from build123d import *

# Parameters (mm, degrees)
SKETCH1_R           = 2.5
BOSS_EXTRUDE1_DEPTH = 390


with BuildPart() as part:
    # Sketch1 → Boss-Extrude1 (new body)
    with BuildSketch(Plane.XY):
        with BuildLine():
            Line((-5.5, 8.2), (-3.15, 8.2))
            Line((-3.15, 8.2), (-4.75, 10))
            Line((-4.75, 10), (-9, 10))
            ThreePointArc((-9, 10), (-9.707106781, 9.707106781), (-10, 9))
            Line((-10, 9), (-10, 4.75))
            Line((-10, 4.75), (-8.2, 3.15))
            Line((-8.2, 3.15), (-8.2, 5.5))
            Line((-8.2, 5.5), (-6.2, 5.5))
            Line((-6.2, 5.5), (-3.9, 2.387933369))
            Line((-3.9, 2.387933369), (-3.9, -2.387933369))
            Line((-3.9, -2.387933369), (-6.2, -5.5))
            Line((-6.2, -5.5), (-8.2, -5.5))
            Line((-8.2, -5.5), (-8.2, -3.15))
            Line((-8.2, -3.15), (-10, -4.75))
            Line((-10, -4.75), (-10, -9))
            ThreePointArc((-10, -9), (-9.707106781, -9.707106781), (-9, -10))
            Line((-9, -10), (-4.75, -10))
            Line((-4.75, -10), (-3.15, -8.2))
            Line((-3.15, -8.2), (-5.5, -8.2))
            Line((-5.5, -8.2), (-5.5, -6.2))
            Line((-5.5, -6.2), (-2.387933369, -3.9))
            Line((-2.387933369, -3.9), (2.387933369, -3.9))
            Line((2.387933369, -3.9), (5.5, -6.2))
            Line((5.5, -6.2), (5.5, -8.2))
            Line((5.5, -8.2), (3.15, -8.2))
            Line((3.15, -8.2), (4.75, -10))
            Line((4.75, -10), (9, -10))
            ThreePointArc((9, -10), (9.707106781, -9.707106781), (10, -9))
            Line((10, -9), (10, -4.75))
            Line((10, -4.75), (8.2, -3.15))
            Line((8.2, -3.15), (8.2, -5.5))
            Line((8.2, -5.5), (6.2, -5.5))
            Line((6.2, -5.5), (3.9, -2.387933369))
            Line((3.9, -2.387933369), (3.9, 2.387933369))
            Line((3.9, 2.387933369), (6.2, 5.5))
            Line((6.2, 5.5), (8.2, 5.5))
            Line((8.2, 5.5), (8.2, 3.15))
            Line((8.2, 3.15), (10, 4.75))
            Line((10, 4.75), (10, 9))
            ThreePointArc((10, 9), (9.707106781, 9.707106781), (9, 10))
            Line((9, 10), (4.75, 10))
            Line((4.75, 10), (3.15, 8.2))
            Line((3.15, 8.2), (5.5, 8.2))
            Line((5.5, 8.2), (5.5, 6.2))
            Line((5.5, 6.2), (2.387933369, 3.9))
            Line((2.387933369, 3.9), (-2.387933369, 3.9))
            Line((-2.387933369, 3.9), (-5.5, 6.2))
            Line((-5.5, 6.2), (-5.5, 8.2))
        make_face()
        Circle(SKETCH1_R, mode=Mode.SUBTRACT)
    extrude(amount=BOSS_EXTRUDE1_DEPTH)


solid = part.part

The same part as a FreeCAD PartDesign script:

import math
import FreeCAD as App
import Part
import Sketcher
from FreeCAD import Vector

doc = App.newDocument("Part")
body = doc.addObject("PartDesign::Body", "Body")

# Sketch on XY plane
sketch1 = body.newObject("Sketcher::SketchObject", "Sketch")
sketch1.AttachmentSupport = (doc.getObject("XY_Plane"), [""])
sketch1.MapMode = "FlatFace"
sketch1.addGeometry(Part.LineSegment(Vector(-5.5, 8.2, 0), Vector(-3.1, 8.2, 0)), False)
sketch1.addGeometry(Part.LineSegment(Vector(-3.1, 8.2, 0), Vector(-4.8, 10, 0)), False)
sketch1.addGeometry(Part.LineSegment(Vector(-4.8, 10, 0), Vector(-9, 10, 0)), False)
sketch1.addGeometry(Part.ArcOfCircle(Part.Circle(Vector(-9, 9, 0), Vector(0, 0, 1), 1), math.radians(90), math.radians(180)), False)
sketch1.addGeometry(Part.LineSegment(Vector(-10, 9, 0), Vector(-10, 4.8, 0)), False)
sketch1.addGeometry(Part.LineSegment(Vector(-10, 4.8, 0), Vector(-8.2, 3.1, 0)), False)
sketch1.addGeometry(Part.LineSegment(Vector(-8.2, 3.1, 0), Vector(-8.2, 5.5, 0)), False)
sketch1.addGeometry(Part.LineSegment(Vector(-8.2, 5.5, 0), Vector(-6.2, 5.5, 0)), False)
sketch1.addGeometry(Part.LineSegment(Vector(-6.2, 5.5, 0), Vector(-3.9, 2.4, 0)), False)
sketch1.addGeometry(Part.LineSegment(Vector(-3.9, 2.4, 0), Vector(-3.9, -2.4, 0)), False)
sketch1.addGeometry(Part.LineSegment(Vector(-3.9, -2.4, 0), Vector(-6.2, -5.5, 0)), False)
sketch1.addGeometry(Part.LineSegment(Vector(-6.2, -5.5, 0), Vector(-8.2, -5.5, 0)), False)
sketch1.addGeometry(Part.LineSegment(Vector(-8.2, -5.5, 0), Vector(-8.2, -3.1, 0)), False)
sketch1.addGeometry(Part.LineSegment(Vector(-8.2, -3.1, 0), Vector(-10, -4.8, 0)), False)
sketch1.addGeometry(Part.LineSegment(Vector(-10, -4.8, 0), Vector(-10, -9, 0)), False)
sketch1.addGeometry(Part.ArcOfCircle(Part.Circle(Vector(-9, -9, 0), Vector(0, 0, 1), 1), math.radians(-180), math.radians(-90)), False)
sketch1.addGeometry(Part.LineSegment(Vector(-9, -10, 0), Vector(-4.8, -10, 0)), False)
sketch1.addGeometry(Part.LineSegment(Vector(-4.8, -10, 0), Vector(-3.1, -8.2, 0)), False)
sketch1.addGeometry(Part.LineSegment(Vector(-3.1, -8.2, 0), Vector(-5.5, -8.2, 0)), False)
sketch1.addGeometry(Part.LineSegment(Vector(-5.5, -8.2, 0), Vector(-5.5, -6.2, 0)), False)
sketch1.addGeometry(Part.LineSegment(Vector(-5.5, -6.2, 0), Vector(-2.4, -3.9, 0)), False)
sketch1.addGeometry(Part.LineSegment(Vector(-2.4, -3.9, 0), Vector(2.4, -3.9, 0)), False)
sketch1.addGeometry(Part.LineSegment(Vector(2.4, -3.9, 0), Vector(5.5, -6.2, 0)), False)
sketch1.addGeometry(Part.LineSegment(Vector(5.5, -6.2, 0), Vector(5.5, -8.2, 0)), False)
sketch1.addGeometry(Part.LineSegment(Vector(5.5, -8.2, 0), Vector(3.1, -8.2, 0)), False)
sketch1.addGeometry(Part.LineSegment(Vector(3.1, -8.2, 0), Vector(4.8, -10, 0)), False)
sketch1.addGeometry(Part.LineSegment(Vector(4.8, -10, 0), Vector(9, -10, 0)), False)
sketch1.addGeometry(Part.ArcOfCircle(Part.Circle(Vector(9, -9, 0), Vector(0, 0, 1), 1), math.radians(-90), math.radians(0)), False)
sketch1.addGeometry(Part.LineSegment(Vector(10, -9, 0), Vector(10, -4.8, 0)), False)
sketch1.addGeometry(Part.LineSegment(Vector(10, -4.8, 0), Vector(8.2, -3.1, 0)), False)
sketch1.addGeometry(Part.LineSegment(Vector(8.2, -3.1, 0), Vector(8.2, -5.5, 0)), False)
sketch1.addGeometry(Part.LineSegment(Vector(8.2, -5.5, 0), Vector(6.2, -5.5, 0)), False)
sketch1.addGeometry(Part.LineSegment(Vector(6.2, -5.5, 0), Vector(3.9, -2.4, 0)), False)
sketch1.addGeometry(Part.LineSegment(Vector(3.9, -2.4, 0), Vector(3.9, 2.4, 0)), False)
sketch1.addGeometry(Part.LineSegment(Vector(3.9, 2.4, 0), Vector(6.2, 5.5, 0)), False)
sketch1.addGeometry(Part.LineSegment(Vector(6.2, 5.5, 0), Vector(8.2, 5.5, 0)), False)
sketch1.addGeometry(Part.LineSegment(Vector(8.2, 5.5, 0), Vector(8.2, 3.1, 0)), False)
sketch1.addGeometry(Part.LineSegment(Vector(8.2, 3.1, 0), Vector(10, 4.8, 0)), False)
sketch1.addGeometry(Part.LineSegment(Vector(10, 4.8, 0), Vector(10, 9, 0)), False)
sketch1.addGeometry(Part.ArcOfCircle(Part.Circle(Vector(9, 9, 0), Vector(0, 0, 1), 1), math.radians(0), math.radians(90)), False)
sketch1.addGeometry(Part.LineSegment(Vector(9, 10, 0), Vector(4.8, 10, 0)), False)
sketch1.addGeometry(Part.LineSegment(Vector(4.8, 10, 0), Vector(3.1, 8.2, 0)), False)
sketch1.addGeometry(Part.LineSegment(Vector(3.1, 8.2, 0), Vector(5.5, 8.2, 0)), False)
sketch1.addGeometry(Part.LineSegment(Vector(5.5, 8.2, 0), Vector(5.5, 6.2, 0)), False)
sketch1.addGeometry(Part.LineSegment(Vector(5.5, 6.2, 0), Vector(2.4, 3.9, 0)), False)
sketch1.addGeometry(Part.LineSegment(Vector(2.4, 3.9, 0), Vector(-2.4, 3.9, 0)), False)
sketch1.addGeometry(Part.LineSegment(Vector(-2.4, 3.9, 0), Vector(-5.5, 6.2, 0)), False)
sketch1.addGeometry(Part.LineSegment(Vector(-5.5, 6.2, 0), Vector(-5.5, 8.2, 0)), False)
sketch1.addGeometry(Part.Circle(Vector(0, 0, 0), Vector(0, 0, 1), 2.5), False)
sketch1.addConstraint(Sketcher.Constraint("Coincident", 0, 2, 1, 1))
sketch1.addConstraint(Sketcher.Constraint("Coincident", 1, 2, 2, 1))
sketch1.addConstraint(Sketcher.Constraint("Tangent", 2, 2, 3, 1))
sketch1.addConstraint(Sketcher.Constraint("Tangent", 3, 2, 4, 1))
sketch1.addConstraint(Sketcher.Constraint("Coincident", 4, 2, 5, 1))
sketch1.addConstraint(Sketcher.Constraint("Coincident", 5, 2, 6, 1))
sketch1.addConstraint(Sketcher.Constraint("Coincident", 6, 2, 7, 1))
sketch1.addConstraint(Sketcher.Constraint("Coincident", 7, 2, 8, 1))
sketch1.addConstraint(Sketcher.Constraint("Coincident", 8, 2, 9, 1))
sketch1.addConstraint(Sketcher.Constraint("Coincident", 9, 2, 10, 1))
sketch1.addConstraint(Sketcher.Constraint("Coincident", 10, 2, 11, 1))
sketch1.addConstraint(Sketcher.Constraint("Coincident", 11, 2, 12, 1))
sketch1.addConstraint(Sketcher.Constraint("Coincident", 12, 2, 13, 1))
sketch1.addConstraint(Sketcher.Constraint("Coincident", 13, 2, 14, 1))
sketch1.addConstraint(Sketcher.Constraint("Tangent", 14, 2, 15, 1))
sketch1.addConstraint(Sketcher.Constraint("Tangent", 15, 2, 16, 1))
sketch1.addConstraint(Sketcher.Constraint("Coincident", 16, 2, 17, 1))
sketch1.addConstraint(Sketcher.Constraint("Coincident", 17, 2, 18, 1))
sketch1.addConstraint(Sketcher.Constraint("Coincident", 18, 2, 19, 1))
sketch1.addConstraint(Sketcher.Constraint("Coincident", 19, 2, 20, 1))
sketch1.addConstraint(Sketcher.Constraint("Coincident", 20, 2, 21, 1))
sketch1.addConstraint(Sketcher.Constraint("Coincident", 21, 2, 22, 1))
sketch1.addConstraint(Sketcher.Constraint("Coincident", 22, 2, 23, 1))
sketch1.addConstraint(Sketcher.Constraint("Coincident", 23, 2, 24, 1))
sketch1.addConstraint(Sketcher.Constraint("Coincident", 24, 2, 25, 1))
sketch1.addConstraint(Sketcher.Constraint("Coincident", 25, 2, 26, 1))
sketch1.addConstraint(Sketcher.Constraint("Tangent", 26, 2, 27, 1))
sketch1.addConstraint(Sketcher.Constraint("Tangent", 27, 2, 28, 1))
sketch1.addConstraint(Sketcher.Constraint("Coincident", 28, 2, 29, 1))
sketch1.addConstraint(Sketcher.Constraint("Coincident", 29, 2, 30, 1))
sketch1.addConstraint(Sketcher.Constraint("Coincident", 30, 2, 31, 1))
sketch1.addConstraint(Sketcher.Constraint("Coincident", 31, 2, 32, 1))
sketch1.addConstraint(Sketcher.Constraint("Coincident", 32, 2, 33, 1))
sketch1.addConstraint(Sketcher.Constraint("Coincident", 33, 2, 34, 1))
sketch1.addConstraint(Sketcher.Constraint("Coincident", 34, 2, 35, 1))
sketch1.addConstraint(Sketcher.Constraint("Coincident", 35, 2, 36, 1))
sketch1.addConstraint(Sketcher.Constraint("Coincident", 36, 2, 37, 1))
sketch1.addConstraint(Sketcher.Constraint("Coincident", 37, 2, 38, 1))
sketch1.addConstraint(Sketcher.Constraint("Tangent", 38, 2, 39, 1))
sketch1.addConstraint(Sketcher.Constraint("Tangent", 39, 2, 40, 1))
sketch1.addConstraint(Sketcher.Constraint("Coincident", 40, 2, 41, 1))
sketch1.addConstraint(Sketcher.Constraint("Coincident", 41, 2, 42, 1))
sketch1.addConstraint(Sketcher.Constraint("Coincident", 42, 2, 43, 1))
sketch1.addConstraint(Sketcher.Constraint("Coincident", 43, 2, 44, 1))
sketch1.addConstraint(Sketcher.Constraint("Coincident", 44, 2, 45, 1))
sketch1.addConstraint(Sketcher.Constraint("Coincident", 45, 2, 46, 1))
sketch1.addConstraint(Sketcher.Constraint("Coincident", 46, 2, 47, 1))
sketch1.addConstraint(Sketcher.Constraint("Coincident", 47, 2, 0, 1))
sketch1.addConstraint(Sketcher.Constraint("Horizontal", 0))
sketch1.addConstraint(Sketcher.Constraint("Horizontal", 2))
sketch1.addConstraint(Sketcher.Constraint("Vertical", 4))
sketch1.addConstraint(Sketcher.Constraint("Vertical", 6))
sketch1.addConstraint(Sketcher.Constraint("Horizontal", 7))
sketch1.addConstraint(Sketcher.Constraint("Vertical", 9))
sketch1.addConstraint(Sketcher.Constraint("Horizontal", 11))
sketch1.addConstraint(Sketcher.Constraint("Vertical", 12))
sketch1.addConstraint(Sketcher.Constraint("Vertical", 14))
sketch1.addConstraint(Sketcher.Constraint("Horizontal", 16))
sketch1.addConstraint(Sketcher.Constraint("Horizontal", 18))
sketch1.addConstraint(Sketcher.Constraint("Vertical", 19))
sketch1.addConstraint(Sketcher.Constraint("Horizontal", 21))
sketch1.addConstraint(Sketcher.Constraint("Vertical", 23))
sketch1.addConstraint(Sketcher.Constraint("Horizontal", 24))
sketch1.addConstraint(Sketcher.Constraint("Horizontal", 26))
sketch1.addConstraint(Sketcher.Constraint("Vertical", 28))
sketch1.addConstraint(Sketcher.Constraint("Vertical", 30))
sketch1.addConstraint(Sketcher.Constraint("Horizontal", 31))
sketch1.addConstraint(Sketcher.Constraint("Vertical", 33))
sketch1.addConstraint(Sketcher.Constraint("Horizontal", 35))
sketch1.addConstraint(Sketcher.Constraint("Vertical", 36))
sketch1.addConstraint(Sketcher.Constraint("Vertical", 38))
sketch1.addConstraint(Sketcher.Constraint("Horizontal", 40))
sketch1.addConstraint(Sketcher.Constraint("Horizontal", 42))
sketch1.addConstraint(Sketcher.Constraint("Vertical", 43))
sketch1.addConstraint(Sketcher.Constraint("Horizontal", 45))
sketch1.addConstraint(Sketcher.Constraint("Vertical", 47))
sketch1.addConstraint(Sketcher.Constraint("Coincident", 48, 3, -1, 1))
sketch1.addConstraint(Sketcher.Constraint("Equal", 3, 15))
sketch1.addConstraint(Sketcher.Constraint("Equal", 15, 27))
sketch1.addConstraint(Sketcher.Constraint("Equal", 27, 39))
sketch1.addConstraint(Sketcher.Constraint("Symmetric", 3, 3, 27, 3, -1, 1))
sketch1.addConstraint(Sketcher.Constraint("Symmetric", 15, 3, 39, 3, -1, 1))
sketch1.addConstraint(Sketcher.Constraint("Symmetric", 0, 2, 24, 2, -1, 1))
sketch1.addConstraint(Sketcher.Constraint("Symmetric", 5, 2, 29, 2, -1, 1))
sketch1.addConstraint(Sketcher.Constraint("Symmetric", 7, 2, 31, 2, -1, 1))
sketch1.addConstraint(Sketcher.Constraint("Symmetric", 8, 2, 32, 2, -1, 1))
sketch1.addConstraint(Sketcher.Constraint("Symmetric", 10, 2, 34, 2, -1, 1))
sketch1.addConstraint(Sketcher.Constraint("Symmetric", 12, 2, 36, 2, -1, 1))
sketch1.addConstraint(Sketcher.Constraint("Symmetric", 17, 2, 41, 2, -1, 1))
sketch1.addConstraint(Sketcher.Constraint("Symmetric", 19, 2, 43, 2, -1, 1))
sketch1.addConstraint(Sketcher.Constraint("Symmetric", 20, 2, 44, 2, -1, 1))
sketch1.addConstraint(Sketcher.Constraint("Symmetric", 22, 2, 46, 2, -1, 1))
sketch1.addConstraint(Sketcher.Constraint("Symmetric", 15, 3, 27, 3, -2))
sketch1.addConstraint(Sketcher.Constraint("Symmetric", 19, 2, 22, 2, -2))
sketch1.addConstraint(Sketcher.Constraint("Symmetric", 17, 2, 24, 2, -2))
sketch1.addConstraint(Sketcher.Constraint("Symmetric", 12, 2, 29, 2, -2))
sketch1.addConstraint(Sketcher.Constraint("Symmetric", 10, 2, 31, 2, -2))
sketch1.addConstraint(Sketcher.Constraint("Perpendicular", 1, 13))
sketch1.addConstraint(Sketcher.Constraint("Perpendicular", 5, 17))
sketch1.addConstraint(Sketcher.Constraint("Perpendicular", 8, 20))
sketch1.addConstraint(Sketcher.Constraint("Perpendicular", 10, 22))
sketch1.addConstraint(Sketcher.Constraint("Perpendicular", 13, 25))
sketch1.addConstraint(Sketcher.Constraint("Perpendicular", 17, 29))
sketch1.addConstraint(Sketcher.Constraint("Perpendicular", 22, 34))
sketch1.addConstraint(Sketcher.Constraint("Perpendicular", 25, 37))
sketch1.addConstraint(Sketcher.Constraint("Perpendicular", 29, 41))
sketch1.addConstraint(Sketcher.Constraint("Perpendicular", 34, 46))
sketch1.addConstraint(Sketcher.Constraint("Horizontal", 13, 2, 28, 2))
sketch1.addConstraint(Sketcher.Constraint("Horizontal", 9, 2, 32, 2))
sketch1.addConstraint(Sketcher.Constraint("Equal", 40, 4))
sketch1.addConstraint(Sketcher.Constraint("Equal", 42, 6))
sketch1.addConstraint(Sketcher.Constraint("Equal", 45, 9))
sketch1.addConstraint(Sketcher.Constraint("Equal", 35, 19))
sketch1.addConstraint(Sketcher.Constraint("Equal", 1, 5))
sketch1.addConstraint(Sketcher.Constraint("Equal", 10, 20))
sketch1.addConstraint(Sketcher.Constraint("Diameter", 48, 5.0))
sketch1.addConstraint(Sketcher.Constraint("Radius", 3, 1.0))
sketch1.addConstraint(Sketcher.Constraint("DistanceX", 7, 1, 7, 2, 2.0))
sketch1.addConstraint(Sketcher.Constraint("DistanceX", 3, 3, -1, 1, 9.0))
sketch1.addConstraint(Sketcher.Constraint("DistanceX", 0, 1, 0, 2, 2.35))
sketch1.addConstraint(Sketcher.Constraint("DistanceX", 2, 2, 2, 1, 4.25))
sketch1.addConstraint(Sketcher.Constraint("DistanceY", -1, 1, 0, 2, 8.2))
sketch1.addConstraint(Sketcher.Constraint("DistanceY", -1, 1, 6, 2, 5.5))
sketch1.addConstraint(Sketcher.Constraint("DistanceX", 8, 2, -1, 1, 3.9))
sketch1.addConstraint(Sketcher.Constraint("Distance", 8, 3.869749))
pad1 = body.newObject("PartDesign::Pad", "Pad")
pad1.Profile = sketch1
pad1.Length = 390

doc.recompute()
